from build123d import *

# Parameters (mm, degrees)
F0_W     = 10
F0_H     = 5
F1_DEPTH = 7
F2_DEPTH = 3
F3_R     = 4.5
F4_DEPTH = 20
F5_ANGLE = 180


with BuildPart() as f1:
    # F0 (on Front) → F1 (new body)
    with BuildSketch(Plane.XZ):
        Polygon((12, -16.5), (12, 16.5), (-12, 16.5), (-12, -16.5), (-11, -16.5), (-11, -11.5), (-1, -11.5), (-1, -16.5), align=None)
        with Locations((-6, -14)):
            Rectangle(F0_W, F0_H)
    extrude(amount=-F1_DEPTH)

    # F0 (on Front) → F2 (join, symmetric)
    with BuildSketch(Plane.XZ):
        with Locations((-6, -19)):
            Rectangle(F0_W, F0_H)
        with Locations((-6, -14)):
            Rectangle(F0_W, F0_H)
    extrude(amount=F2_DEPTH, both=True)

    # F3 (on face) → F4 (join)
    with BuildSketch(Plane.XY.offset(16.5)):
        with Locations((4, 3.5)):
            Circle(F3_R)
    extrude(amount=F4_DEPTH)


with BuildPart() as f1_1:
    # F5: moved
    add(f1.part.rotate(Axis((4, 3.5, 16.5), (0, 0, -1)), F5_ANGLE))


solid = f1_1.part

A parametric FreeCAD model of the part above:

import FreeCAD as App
import Part
import Sketcher
from FreeCAD import Vector
Q = App.Units.Quantity


def add_polygon(sketch, points):
    """Adds a closed chain of lines whose ends are joined by coincident constraints."""
    first, n = sketch.GeometryCount, len(points)
    for a, b in zip(points, points[1:] + points[:1]):
        sketch.addGeometry(Part.LineSegment(App.Vector(*a, 0), App.Vector(*b, 0)), False)
    for i in range(n):
        sketch.addConstraint(Sketcher.Constraint("Coincident", first + i, 2, first + (i + 1) % n, 1))

doc = App.newDocument("Part")
body = doc.addObject("PartDesign::Body", "Body")

sketch1 = body.newObject("Sketcher::SketchObject", "Sketch")
sketch1.AttachmentSupport = (doc.getObject("XZ_Plane"), [""])
sketch1.MapMode = "FlatFace"
add_polygon(sketch1, [(12, -16.5), (12, 16.5), (-12, 16.5), (-12, -16.5)])
sketch1.addConstraint([
    Sketcher.Constraint("Vertical", 0),
    Sketcher.Constraint("Horizontal", 1),
    Sketcher.Constraint("Vertical", 2),
    Sketcher.Constraint("Horizontal", 3),
    Sketcher.Constraint("Symmetric", 0, 2, 2, 2, -1, 1),
    Sketcher.Constraint("DistanceX", 1, 2, 1, 1, Q("24 mm")),
    Sketcher.Constraint("DistanceY", 0, 1, 0, 2, Q("33 mm")),
])
pad1 = body.newObject("PartDesign::Pad", "Pad")
pad1.Profile = sketch1
pad1.Length = 7
pad1.Reversed = True

sketch2 = body.newObject("Sketcher::SketchObject", "Sketch001")
sketch2.AttachmentSupport = (doc.getObject("XZ_Plane"), [""])
sketch2.MapMode = "FlatFace"
add_polygon(sketch2, [(-11, -21.5), (-1, -21.5), (-1, -11.5), (-11, -11.5)])
sketch2.addConstraint([
    Sketcher.Constraint("Horizontal", 0),
    Sketcher.Constraint("Vertical", 1),
    Sketcher.Constraint("Horizontal", 2),
    Sketcher.Constraint("Vertical", 3),
    Sketcher.Constraint("Equal", 2, 1),
    Sketcher.Constraint("DistanceX", 0, 1, 0, 2, Q("10 mm")),
    Sketcher.Constraint("DistanceX", 0, 2, -1, 1, Q("1 mm")),
    Sketcher.Constraint("DistanceY", 0, 2, -1, 1, Q("21.5 mm")),
])
pad2 = body.newObject("PartDesign::Pad", "Pad001")
pad2.Profile = sketch2
pad2.Length = 6
pad2.Midplane = True

sketch3 = body.newObject("Sketcher::SketchObject", "Sketch002")
sketch3.AttachmentSupport = (doc.getObject("XY_Plane"), [""])
sketch3.MapMode = "FlatFace"
sketch3.AttachmentOffset = App.Placement(Vector(0, 0, 16.5), App.Rotation())
sketch3.addGeometry(Part.Circle(Vector(4, 3.5, 0), Vector(0, 0, 1), 4.5), False)
sketch3.addConstraint([
    Sketcher.Constraint("Diameter", 0, Q("9 mm")),
    Sketcher.Constraint("DistanceX", -1, 1, 0, 3, Q("4 mm")),
    Sketcher.Constraint("DistanceY", -1, 1, 0, 3, Q("3.5 mm")),
])
pad3 = body.newObject("PartDesign::Pad", "Pad002")
pad3.Profile = sketch3
pad3.Length = 20
body2 = doc.addObject("PartDesign::Body", "Body001")
doc.recompute()

body.Placement = App.Placement(Vector(8, 7, 0), App.Rotation(Vector(0, 0, -1), 180))
boolean = body2.newObject("PartDesign::Boolean", "Boolean")
boolean.Type = "Fuse"
boolean.addObjects([body])

doc.recompute()
